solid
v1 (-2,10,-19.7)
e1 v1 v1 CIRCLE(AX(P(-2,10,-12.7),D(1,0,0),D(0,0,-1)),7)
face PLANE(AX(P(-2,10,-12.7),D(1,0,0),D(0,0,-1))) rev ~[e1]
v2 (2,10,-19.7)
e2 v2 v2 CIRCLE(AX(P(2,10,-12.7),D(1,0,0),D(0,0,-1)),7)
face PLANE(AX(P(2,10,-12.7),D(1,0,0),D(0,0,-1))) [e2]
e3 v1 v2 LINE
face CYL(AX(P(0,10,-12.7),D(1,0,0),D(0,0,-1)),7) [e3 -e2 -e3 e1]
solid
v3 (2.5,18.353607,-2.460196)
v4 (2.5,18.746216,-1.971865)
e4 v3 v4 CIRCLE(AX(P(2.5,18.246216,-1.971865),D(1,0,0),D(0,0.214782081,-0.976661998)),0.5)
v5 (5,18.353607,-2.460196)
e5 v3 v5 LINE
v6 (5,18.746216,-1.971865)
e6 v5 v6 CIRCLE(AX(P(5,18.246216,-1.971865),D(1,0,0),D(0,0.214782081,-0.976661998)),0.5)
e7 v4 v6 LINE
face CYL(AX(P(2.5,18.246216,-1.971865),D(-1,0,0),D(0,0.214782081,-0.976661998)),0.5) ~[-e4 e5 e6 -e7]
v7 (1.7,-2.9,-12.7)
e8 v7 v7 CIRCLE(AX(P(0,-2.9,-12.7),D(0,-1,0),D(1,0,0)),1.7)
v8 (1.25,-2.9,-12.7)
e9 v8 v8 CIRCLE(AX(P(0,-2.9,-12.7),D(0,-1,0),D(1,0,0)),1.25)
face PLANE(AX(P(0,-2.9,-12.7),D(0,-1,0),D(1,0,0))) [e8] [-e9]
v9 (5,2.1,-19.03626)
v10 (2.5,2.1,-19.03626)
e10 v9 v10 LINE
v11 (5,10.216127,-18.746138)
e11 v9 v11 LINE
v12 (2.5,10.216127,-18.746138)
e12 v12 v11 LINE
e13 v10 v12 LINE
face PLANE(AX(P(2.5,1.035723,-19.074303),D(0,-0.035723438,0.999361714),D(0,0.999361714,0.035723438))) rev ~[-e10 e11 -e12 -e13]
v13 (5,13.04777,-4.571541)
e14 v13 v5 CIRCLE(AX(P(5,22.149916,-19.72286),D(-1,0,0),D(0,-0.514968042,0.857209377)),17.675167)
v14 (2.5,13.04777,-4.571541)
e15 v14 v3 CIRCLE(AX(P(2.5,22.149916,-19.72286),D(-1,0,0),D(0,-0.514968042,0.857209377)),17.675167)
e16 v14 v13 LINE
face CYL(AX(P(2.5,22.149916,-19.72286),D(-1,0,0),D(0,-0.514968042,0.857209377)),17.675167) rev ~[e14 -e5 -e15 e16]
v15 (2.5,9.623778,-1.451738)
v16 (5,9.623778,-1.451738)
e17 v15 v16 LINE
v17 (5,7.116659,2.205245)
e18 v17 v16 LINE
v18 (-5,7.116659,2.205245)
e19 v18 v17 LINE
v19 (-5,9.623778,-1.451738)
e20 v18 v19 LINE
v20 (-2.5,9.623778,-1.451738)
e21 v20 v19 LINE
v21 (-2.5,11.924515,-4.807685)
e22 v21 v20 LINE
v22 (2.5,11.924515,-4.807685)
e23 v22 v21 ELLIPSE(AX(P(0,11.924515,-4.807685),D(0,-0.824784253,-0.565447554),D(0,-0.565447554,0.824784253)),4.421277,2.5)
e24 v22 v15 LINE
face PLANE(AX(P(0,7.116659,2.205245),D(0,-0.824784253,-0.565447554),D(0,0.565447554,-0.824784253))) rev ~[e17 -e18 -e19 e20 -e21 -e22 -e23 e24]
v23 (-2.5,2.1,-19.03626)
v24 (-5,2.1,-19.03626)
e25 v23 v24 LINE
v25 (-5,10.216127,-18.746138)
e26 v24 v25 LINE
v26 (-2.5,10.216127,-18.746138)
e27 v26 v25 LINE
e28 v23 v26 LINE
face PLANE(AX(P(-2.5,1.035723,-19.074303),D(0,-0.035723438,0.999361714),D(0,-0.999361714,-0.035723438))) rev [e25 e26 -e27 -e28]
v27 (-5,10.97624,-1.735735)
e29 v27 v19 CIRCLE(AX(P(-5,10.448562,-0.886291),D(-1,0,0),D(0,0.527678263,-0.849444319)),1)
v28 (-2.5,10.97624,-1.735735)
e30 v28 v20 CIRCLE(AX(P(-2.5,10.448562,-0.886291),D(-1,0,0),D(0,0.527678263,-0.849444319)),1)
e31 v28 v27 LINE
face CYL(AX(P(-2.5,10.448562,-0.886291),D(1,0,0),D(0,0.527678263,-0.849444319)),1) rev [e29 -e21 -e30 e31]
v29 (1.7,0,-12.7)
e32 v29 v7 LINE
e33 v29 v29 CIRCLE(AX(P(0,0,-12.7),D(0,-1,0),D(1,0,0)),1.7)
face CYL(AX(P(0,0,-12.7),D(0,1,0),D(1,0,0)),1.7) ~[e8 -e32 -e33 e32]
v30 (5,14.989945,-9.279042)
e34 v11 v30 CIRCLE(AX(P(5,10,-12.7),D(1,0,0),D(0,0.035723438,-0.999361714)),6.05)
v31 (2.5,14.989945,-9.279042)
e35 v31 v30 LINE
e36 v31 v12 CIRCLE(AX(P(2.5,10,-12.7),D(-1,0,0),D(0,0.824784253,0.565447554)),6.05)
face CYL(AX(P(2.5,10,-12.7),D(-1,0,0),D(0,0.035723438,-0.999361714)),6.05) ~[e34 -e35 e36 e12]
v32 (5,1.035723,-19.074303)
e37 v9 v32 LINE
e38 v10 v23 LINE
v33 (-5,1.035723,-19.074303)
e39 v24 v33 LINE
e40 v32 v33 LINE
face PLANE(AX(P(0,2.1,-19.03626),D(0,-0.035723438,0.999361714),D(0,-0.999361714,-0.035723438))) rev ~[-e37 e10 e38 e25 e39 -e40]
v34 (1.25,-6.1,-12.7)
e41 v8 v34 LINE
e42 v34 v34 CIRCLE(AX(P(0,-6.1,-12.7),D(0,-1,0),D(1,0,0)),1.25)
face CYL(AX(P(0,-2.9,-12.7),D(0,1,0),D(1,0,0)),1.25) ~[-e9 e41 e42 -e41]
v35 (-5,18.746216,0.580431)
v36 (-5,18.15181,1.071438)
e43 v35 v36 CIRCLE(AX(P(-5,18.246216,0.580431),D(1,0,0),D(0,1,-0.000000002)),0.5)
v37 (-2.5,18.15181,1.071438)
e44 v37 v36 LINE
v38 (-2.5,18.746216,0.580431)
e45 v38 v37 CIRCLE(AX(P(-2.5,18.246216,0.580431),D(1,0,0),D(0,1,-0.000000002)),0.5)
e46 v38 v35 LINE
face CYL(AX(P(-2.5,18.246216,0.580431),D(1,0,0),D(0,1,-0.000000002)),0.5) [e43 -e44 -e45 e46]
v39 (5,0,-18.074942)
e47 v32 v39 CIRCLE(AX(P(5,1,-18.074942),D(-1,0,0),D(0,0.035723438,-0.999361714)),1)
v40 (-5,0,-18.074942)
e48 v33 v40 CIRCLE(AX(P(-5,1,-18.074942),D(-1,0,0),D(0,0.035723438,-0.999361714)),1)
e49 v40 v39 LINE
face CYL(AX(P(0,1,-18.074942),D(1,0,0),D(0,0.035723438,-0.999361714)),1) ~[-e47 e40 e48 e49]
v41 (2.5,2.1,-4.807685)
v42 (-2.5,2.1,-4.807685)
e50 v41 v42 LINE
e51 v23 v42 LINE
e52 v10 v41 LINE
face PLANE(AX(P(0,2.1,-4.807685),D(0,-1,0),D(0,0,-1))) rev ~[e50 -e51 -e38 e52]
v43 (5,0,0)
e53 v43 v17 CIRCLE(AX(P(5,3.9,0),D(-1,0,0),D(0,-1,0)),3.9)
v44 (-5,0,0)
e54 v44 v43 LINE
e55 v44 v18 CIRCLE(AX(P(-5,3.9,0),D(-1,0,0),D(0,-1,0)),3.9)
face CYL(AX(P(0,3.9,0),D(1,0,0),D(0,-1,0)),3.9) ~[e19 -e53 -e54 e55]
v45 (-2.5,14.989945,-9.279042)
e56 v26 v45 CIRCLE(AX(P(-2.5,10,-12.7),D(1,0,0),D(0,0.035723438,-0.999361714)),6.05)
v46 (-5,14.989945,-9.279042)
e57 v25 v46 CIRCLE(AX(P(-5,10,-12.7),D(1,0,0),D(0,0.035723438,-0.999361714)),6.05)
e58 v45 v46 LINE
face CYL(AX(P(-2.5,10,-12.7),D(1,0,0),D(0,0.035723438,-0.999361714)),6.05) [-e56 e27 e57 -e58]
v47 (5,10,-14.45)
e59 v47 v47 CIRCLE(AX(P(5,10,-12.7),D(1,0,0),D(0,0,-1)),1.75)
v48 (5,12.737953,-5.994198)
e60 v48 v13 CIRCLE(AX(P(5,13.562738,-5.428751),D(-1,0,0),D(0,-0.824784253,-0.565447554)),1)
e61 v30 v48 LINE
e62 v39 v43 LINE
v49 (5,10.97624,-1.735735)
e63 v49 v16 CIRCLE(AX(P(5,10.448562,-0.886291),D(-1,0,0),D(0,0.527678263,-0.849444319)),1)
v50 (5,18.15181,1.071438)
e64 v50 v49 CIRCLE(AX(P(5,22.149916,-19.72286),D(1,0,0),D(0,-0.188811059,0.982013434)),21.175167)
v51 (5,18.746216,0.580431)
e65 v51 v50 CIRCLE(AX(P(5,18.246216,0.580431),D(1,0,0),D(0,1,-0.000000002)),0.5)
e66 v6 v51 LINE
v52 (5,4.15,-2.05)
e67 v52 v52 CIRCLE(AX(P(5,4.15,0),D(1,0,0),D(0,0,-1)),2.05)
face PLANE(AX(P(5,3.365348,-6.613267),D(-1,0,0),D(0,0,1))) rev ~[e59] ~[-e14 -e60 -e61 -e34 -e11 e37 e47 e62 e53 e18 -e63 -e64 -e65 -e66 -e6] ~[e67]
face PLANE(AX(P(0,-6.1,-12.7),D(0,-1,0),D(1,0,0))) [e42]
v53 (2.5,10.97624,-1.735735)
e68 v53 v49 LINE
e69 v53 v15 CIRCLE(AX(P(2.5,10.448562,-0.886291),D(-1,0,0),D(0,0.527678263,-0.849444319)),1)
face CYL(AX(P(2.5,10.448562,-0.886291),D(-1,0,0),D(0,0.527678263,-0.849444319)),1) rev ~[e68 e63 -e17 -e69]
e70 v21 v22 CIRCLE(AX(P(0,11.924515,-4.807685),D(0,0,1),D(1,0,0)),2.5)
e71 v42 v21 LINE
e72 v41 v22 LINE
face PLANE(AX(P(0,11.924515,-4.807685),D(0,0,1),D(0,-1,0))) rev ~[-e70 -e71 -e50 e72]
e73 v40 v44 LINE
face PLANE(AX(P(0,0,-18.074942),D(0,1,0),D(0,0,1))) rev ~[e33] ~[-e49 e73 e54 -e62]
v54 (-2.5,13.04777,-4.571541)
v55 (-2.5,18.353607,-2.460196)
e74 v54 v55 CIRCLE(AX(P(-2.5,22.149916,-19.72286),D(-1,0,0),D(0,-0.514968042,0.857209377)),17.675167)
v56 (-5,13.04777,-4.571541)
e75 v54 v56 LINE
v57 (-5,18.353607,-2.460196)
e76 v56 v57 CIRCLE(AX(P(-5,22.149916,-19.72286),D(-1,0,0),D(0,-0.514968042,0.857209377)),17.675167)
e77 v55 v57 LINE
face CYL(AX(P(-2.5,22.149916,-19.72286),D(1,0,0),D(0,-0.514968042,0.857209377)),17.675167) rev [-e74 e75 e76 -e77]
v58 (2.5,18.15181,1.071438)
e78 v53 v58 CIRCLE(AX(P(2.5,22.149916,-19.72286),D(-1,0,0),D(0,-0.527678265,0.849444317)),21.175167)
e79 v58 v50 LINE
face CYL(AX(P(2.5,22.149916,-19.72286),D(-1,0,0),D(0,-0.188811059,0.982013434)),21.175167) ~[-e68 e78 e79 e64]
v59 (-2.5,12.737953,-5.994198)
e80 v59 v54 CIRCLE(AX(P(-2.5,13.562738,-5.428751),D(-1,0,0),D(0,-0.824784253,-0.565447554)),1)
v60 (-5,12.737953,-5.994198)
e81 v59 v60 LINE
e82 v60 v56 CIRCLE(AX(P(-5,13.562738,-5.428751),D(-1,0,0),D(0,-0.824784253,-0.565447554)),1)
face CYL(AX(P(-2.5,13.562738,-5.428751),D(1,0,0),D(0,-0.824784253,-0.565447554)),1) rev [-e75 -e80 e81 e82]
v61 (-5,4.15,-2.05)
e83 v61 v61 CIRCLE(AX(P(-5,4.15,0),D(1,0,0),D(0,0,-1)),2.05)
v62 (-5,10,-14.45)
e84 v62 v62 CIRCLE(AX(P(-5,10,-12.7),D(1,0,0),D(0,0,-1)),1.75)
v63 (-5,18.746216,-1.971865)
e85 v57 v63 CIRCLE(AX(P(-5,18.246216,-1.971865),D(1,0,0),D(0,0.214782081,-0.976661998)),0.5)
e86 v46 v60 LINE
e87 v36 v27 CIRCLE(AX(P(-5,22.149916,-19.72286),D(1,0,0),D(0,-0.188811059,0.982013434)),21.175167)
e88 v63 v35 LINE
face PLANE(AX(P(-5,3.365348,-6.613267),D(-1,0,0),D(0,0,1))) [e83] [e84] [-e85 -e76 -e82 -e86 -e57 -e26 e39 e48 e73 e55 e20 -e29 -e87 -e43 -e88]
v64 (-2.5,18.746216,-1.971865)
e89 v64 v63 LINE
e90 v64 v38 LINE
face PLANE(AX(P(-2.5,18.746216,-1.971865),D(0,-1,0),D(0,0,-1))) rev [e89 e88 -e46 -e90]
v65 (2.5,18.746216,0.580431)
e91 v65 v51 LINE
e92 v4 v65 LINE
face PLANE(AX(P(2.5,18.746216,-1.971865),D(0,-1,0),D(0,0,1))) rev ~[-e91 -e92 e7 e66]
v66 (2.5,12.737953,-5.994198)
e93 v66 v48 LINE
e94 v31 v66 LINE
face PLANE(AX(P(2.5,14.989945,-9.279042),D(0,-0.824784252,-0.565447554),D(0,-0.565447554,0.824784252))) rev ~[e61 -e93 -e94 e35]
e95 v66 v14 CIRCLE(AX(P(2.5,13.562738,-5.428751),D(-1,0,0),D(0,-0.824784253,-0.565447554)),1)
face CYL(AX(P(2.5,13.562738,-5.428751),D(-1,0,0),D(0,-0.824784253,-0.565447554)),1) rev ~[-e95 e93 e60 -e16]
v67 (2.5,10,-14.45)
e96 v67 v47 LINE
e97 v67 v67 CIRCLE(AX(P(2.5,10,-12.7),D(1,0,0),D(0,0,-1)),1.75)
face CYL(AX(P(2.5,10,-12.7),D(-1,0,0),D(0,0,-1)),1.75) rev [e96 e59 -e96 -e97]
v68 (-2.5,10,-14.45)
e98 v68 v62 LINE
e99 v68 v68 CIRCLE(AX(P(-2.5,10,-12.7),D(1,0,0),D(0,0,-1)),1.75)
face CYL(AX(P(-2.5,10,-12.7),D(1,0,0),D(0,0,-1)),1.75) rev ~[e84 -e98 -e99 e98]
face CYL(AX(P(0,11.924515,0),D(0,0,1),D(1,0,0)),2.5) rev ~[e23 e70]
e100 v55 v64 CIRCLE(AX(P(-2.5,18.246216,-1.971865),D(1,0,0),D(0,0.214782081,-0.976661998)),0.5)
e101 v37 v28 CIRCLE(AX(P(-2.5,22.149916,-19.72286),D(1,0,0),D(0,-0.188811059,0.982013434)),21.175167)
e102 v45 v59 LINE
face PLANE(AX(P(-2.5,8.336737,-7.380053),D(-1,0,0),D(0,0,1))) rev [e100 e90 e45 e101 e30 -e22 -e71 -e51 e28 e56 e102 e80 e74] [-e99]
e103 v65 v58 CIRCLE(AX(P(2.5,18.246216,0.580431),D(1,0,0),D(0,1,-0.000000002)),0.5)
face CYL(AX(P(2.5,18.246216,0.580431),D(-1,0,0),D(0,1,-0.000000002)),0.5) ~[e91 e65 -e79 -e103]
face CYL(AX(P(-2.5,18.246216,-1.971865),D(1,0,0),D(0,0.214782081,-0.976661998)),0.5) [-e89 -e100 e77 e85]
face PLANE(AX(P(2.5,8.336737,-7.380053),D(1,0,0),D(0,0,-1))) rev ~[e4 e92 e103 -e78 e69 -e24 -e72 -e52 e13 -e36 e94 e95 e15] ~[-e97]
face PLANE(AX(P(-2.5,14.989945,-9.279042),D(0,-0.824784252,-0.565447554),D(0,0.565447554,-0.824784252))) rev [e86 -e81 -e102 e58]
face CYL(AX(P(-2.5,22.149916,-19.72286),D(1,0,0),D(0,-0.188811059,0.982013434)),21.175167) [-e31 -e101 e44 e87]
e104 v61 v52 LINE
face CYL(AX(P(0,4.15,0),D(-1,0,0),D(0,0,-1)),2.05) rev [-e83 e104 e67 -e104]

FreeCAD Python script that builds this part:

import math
import FreeCAD as App
import Part
import Sketcher
Q = App.Units.Quantity

doc = App.newDocument("Part")
body = doc.addObject("PartDesign::Body", "Body")

# Sketch on YZ plane
sketch1 = body.newObject("Sketcher::SketchObject", "Sketch")
sketch1.AttachmentSupport = (doc.getObject("YZ_Plane"), [""])
sketch1.MapMode = "FlatFace"
sketch1.addGeometry(Part.LineSegment(App.Vector(2.1, -4.8, 0), App.Vector(11.9, -4.8, 0)), False)
sketch1.addGeometry(Part.LineSegment(App.Vector(11.9, -4.8, 0), App.Vector(7.1, 2.2, 0)), False)
sketch1.addGeometry(Part.ArcOfCircle(Part.Circle(App.Vector(3.9, 0, 0), App.Vector(0, 0, 1), 3.9), math.radians(34), math.radians(180)), False)
sketch1.addGeometry(Part.LineSegment(App.Vector(0, 0, 0), App.Vector(0, -18.1, 0)), False)
sketch1.addGeometry(Part.ArcOfCircle(Part.Circle(App.Vector(1, -18.1, 0), App.Vector(0, 0, 1), 1), math.radians(180), math.radians(272)), False)
sketch1.addGeometry(Part.LineSegment(App.Vector(1, -19.1, 0), App.Vector(2.1, -19, 0)), False)
sketch1.addGeometry(Part.LineSegment(App.Vector(2.1, -19, 0), App.Vector(2.1, -4.8, 0)), False)
sketch1.addGeometry(Part.Circle(App.Vector(4.2, 0, 0), App.Vector(0, 0, 1), 2), False)
sketch1.addConstraint(Sketcher.Constraint("Coincident", 0, 2, 1, 1))
sketch1.addConstraint(Sketcher.Constraint("Tangent", 1, 2, 2, 1))
sketch1.addConstraint(Sketcher.Constraint("Tangent", 2, 2, 3, 1))
sketch1.addConstraint(Sketcher.Constraint("Tangent", 3, 2, 4, 1))
sketch1.addConstraint(Sketcher.Constraint("Tangent", 4, 2, 5, 1))
sketch1.addConstraint(Sketcher.Constraint("Coincident", 5, 2, 6, 1))
sketch1.addConstraint(Sketcher.Constraint("Coincident", 6, 2, 0, 1))
sketch1.addConstraint(Sketcher.Constraint("Horizontal", 0))
sketch1.addConstraint(Sketcher.Constraint("Vertical", 3))
sketch1.addConstraint(Sketcher.Constraint("Vertical", 6))
sketch1.addConstraint(Sketcher.Constraint("Coincident", 2, 2, -1, 1))
sketch1.addConstraint(Sketcher.Constraint("PointOnObject", 7, 3, -1))
sketch1.addConstraint(Sketcher.Constraint("Radius", 4, Q("1 mm")))
sketch1.addConstraint(Sketcher.Constraint("Diameter", 7, Q("4.1 mm")))
sketch1.addConstraint(Sketcher.Constraint("Radius", 2, Q("3.9 mm")))
sketch1.addConstraint(Sketcher.Constraint("DistanceX", -1, 1, 5, 2, Q("2.1 mm")))
sketch1.addConstraint(Sketcher.Constraint("DistanceX", -1, 1, 7, 3, Q("4.15 mm")))
sketch1.addConstraint(Sketcher.Constraint("DistanceY", 3, 2, 3, 1, Q("18.074942 mm")))
sketch1.addConstraint(Sketcher.Constraint("DistanceX", 0, 1, 0, 2, Q("9.824515 mm")))
sketch1.addConstraint(Sketcher.Constraint("DistanceY", 6, 1, 6, 2, Q("14.228574 mm")))
sketch1.addConstraint(Sketcher.Constraint("DistanceX", -1, 1, 1, 2, Q("7.116659 mm")))
pad1 = body.newObject("PartDesign::Pad", "Pad")
pad1.Profile = sketch1
pad1.Type = "TwoLengths"
pad1.Length = 5
pad1.Length2 = 5

# Sketch on YZ plane
sketch2 = body.newObject("Sketcher::SketchObject", "Sketch001")
sketch2.AttachmentSupport = (doc.getObject("YZ_Plane"), [""])
sketch2.MapMode = "FlatFace"
sketch2.AttachmentOffset = App.Placement(App.Vector(0, 0, 2.5), App.Rotation())
sketch2.addGeometry(Part.LineSegment(App.Vector(0, 0, 0), App.Vector(0, -18.07, 0)), False)
sketch2.addGeometry(Part.ArcOfCircle(Part.Circle(App.Vector(1, -18.07, 0), App.Vector(0, 0, 1), 1), math.radians(180), math.radians(272)), False)
sketch2.addGeometry(Part.LineSegment(App.Vector(1.04, -19.07, 0), App.Vector(10.22, -18.75, 0)), False)
sketch2.addGeometry(Part.ArcOfCircle(Part.Circle(App.Vector(10, -12.7, 0), App.Vector(0, 0, 1), 6.05), math.radians(-88), math.radians(34)), False)
sketch2.addGeometry(Part.LineSegment(App.Vector(14.99, -9.28, 0), App.Vector(12.74, -5.99, 0)), False)
sketch2.addGeometry(Part.ArcOfCircle(Part.Circle(App.Vector(13.56, -5.43, 0), App.Vector(0, 0, 1), 1), math.radians(121), math.radians(214)), False)
sketch2.addGeometry(Part.ArcOfCircle(Part.Circle(App.Vector(22.15, -19.72, 0), App.Vector(0, 0, 1), 17.68), math.radians(102.4), math.radians(121)), False)
sketch2.addGeometry(Part.ArcOfCircle(Part.Circle(App.Vector(18.25, -1.97, 0), App.Vector(0, 0, 1), 0.5), math.radians(-78), math.radians(0)), False)
sketch2.addGeometry(Part.LineSegment(App.Vector(18.75, -1.97, 0), App.Vector(18.75, 0.58, 0)), False)
sketch2.addGeometry(Part.ArcOfCircle(Part.Circle(App.Vector(18.25, 0.58, 0), App.Vector(0, 0, 1), 0.5), math.radians(0), math.radians(101)), False)
sketch2.addGeometry(Part.ArcOfCircle(Part.Circle(App.Vector(22.15, -19.72, 0), App.Vector(0, 0, 1), 21.18), math.radians(101), math.radians(122)), False)
sketch2.addGeometry(Part.ArcOfCircle(Part.Circle(App.Vector(10.45, -0.89, 0), App.Vector(0, 0, 1), 1), math.radians(-146), math.radians(-58)), False)
sketch2.addGeometry(Part.LineSegment(App.Vector(9.62, -1.45, 0), App.Vector(7.12, 2.21, 0)), False)
sketch2.addGeometry(Part.ArcOfCircle(Part.Circle(App.Vector(3.9, 0, 0), App.Vector(0, 0, 1), 3.9), math.radians(34), math.radians(180)), False)
sketch2.addGeometry(Part.Circle(App.Vector(4.15, 0, 0), App.Vector(0, 0, 1), 2.05), False)
sketch2.addGeometry(Part.Circle(App.Vector(10, -12.7, 0), App.Vector(0, 0, 1), 1.75), False)
sketch2.addConstraint(Sketcher.Constraint("Tangent", 0, 2, 1, 1))
sketch2.addConstraint(Sketcher.Constraint("Tangent", 1, 2, 2, 1))
sketch2.addConstraint(Sketcher.Constraint("Tangent", 2, 2, 3, 1))
sketch2.addConstraint(Sketcher.Constraint("Tangent", 3, 2, 4, 1))
sketch2.addConstraint(Sketcher.Constraint("Tangent", 4, 2, 5, 2))
sketch2.addConstraint(Sketcher.Constraint("Tangent", 5, 1, 6, 2))
sketch2.addConstraint(Sketcher.Constraint("Tangent", 6, 1, 7, 1))
sketch2.addConstraint(Sketcher.Constraint("Tangent", 7, 2, 8, 1))
sketch2.addConstraint(Sketcher.Constraint("Tangent", 8, 2, 9, 1))
sketch2.addConstraint(Sketcher.Constraint("Tangent", 9, 2, 10, 1))
sketch2.addConstraint(Sketcher.Constraint("Tangent", 10, 2, 11, 2))
sketch2.addConstraint(Sketcher.Constraint("Tangent", 11, 1, 12, 1))
sketch2.addConstraint(Sketcher.Constraint("Tangent", 12, 2, 13, 1))
sketch2.addConstraint(Sketcher.Constraint("Tangent", 13, 2, 0, 1))
sketch2.addConstraint(Sketcher.Constraint("Vertical", 0))
sketch2.addConstraint(Sketcher.Constraint("Vertical", 8))
sketch2.addConstraint(Sketcher.Constraint("Coincident", 13, 2, -1, 1))
sketch2.addConstraint(Sketcher.Constraint("Coincident", 10, 3, 6, 3))
sketch2.addConstraint(Sketcher.Constraint("Coincident", 15, 3, 3, 3))
sketch2.addConstraint(Sketcher.Constraint("Equal", 1, 5))
sketch2.addConstraint(Sketcher.Constraint("Equal", 7, 9))
sketch2.addConstraint(Sketcher.Constraint("Equal", 5, 11))
sketch2.addConstraint(Sketcher.Constraint("PointOnObject", 14, 3, -1))
sketch2.addConstraint(Sketcher.Constraint("Parallel", 4, 12))
sketch2.addConstraint(Sketcher.Constraint("Radius", 1, Q("1 mm")))
sketch2.addConstraint(Sketcher.Constraint("Diameter", 14, Q("4.1 mm")))
sketch2.addConstraint(Sketcher.Constraint("Diameter", 15, Q("3.5 mm")))
sketch2.addConstraint(Sketcher.Constraint("Radius", 7, Q("0.5 mm")))
sketch2.addConstraint(Sketcher.Constraint("Radius", 13, Q("3.9 mm")))
sketch2.addConstraint(Sketcher.Constraint("Radius", 3, Q("6.05 mm")))
sketch2.addConstraint(Sketcher.Constraint("DistanceX", -1, 1, 3, 3, Q("10 mm")))
sketch2.addConstraint(Sketcher.Constraint("DistanceY", 3, 3, -1, 1, Q("12.7 mm")))
sketch2.addConstraint(Sketcher.Constraint("DistanceX", -1, 1, 14, 3, Q("4.15 mm")))
sketch2.addConstraint(Sketcher.Constraint("Radius", 6, Q("17.675167 mm")))
sketch2.addConstraint(Sketcher.Constraint("Radius", 10, Q("21.175167 mm")))
sketch2.addConstraint(Sketcher.Constraint("DistanceY", 4, 2, 6, 1, Q("3.534002 mm")))
sketch2.addConstraint(Sketcher.Constraint("DistanceY", 0, 2, 0, 1, Q("18.074942 mm")))
sketch2.addConstraint(Sketcher.Constraint("DistanceY", 4, 2, -1, 1, Q("5.994198 mm")))
sketch2.addConstraint(Sketcher.Constraint("DistanceX", 7, 3, 6, 3, Q("3.9037 mm")))
sketch2.addConstraint(Sketcher.Constraint("DistanceY", 3, 2, 5, 1, Q("4.707501 mm")))
pad2 = body.newObject("PartDesign::Pad", "Pad001")
pad2.Profile = sketch2
pad2.Length = 2.5
doc.recompute()

mirrored = body.newObject("PartDesign::Mirrored", "Mirrored")
mirrored.Originals = [pad2]
mirrored.MirrorPlane = (doc.getObject("YZ_Plane"), [""])
body.Tip = mirrored

# Sketch on XY plane
sketch3 = body.newObject("Sketcher::SketchObject", "Sketch002")
sketch3.AttachmentSupport = (doc.getObject("XY_Plane"), [""])
sketch3.MapMode = "FlatFace"
sketch3.addGeometry(Part.Circle(App.Vector(0, 11.9, 0), App.Vector(0, 0, 1), 2.5), False)
sketch3.addConstraint(Sketcher.Constraint("PointOnObject", 0, 3, -2))
sketch3.addConstraint(Sketcher.Constraint("Diameter", 0, Q("5 mm")))
sketch3.addConstraint(Sketcher.Constraint("DistanceY", -1, 1, 0, 3, Q("11.924515 mm")))
pocket1 = body.newObject("PartDesign::Pocket", "Pocket")
pocket1.Profile = sketch3
pocket1.Length = 21

# Sketch on XZ plane
sketch4 = body.newObject("Sketcher::SketchObject", "Sketch003")
sketch4.AttachmentSupport = (doc.getObject("XZ_Plane"), [""])
sketch4.MapMode = "FlatFace"
sketch4.addGeometry(Part.Circle(App.Vector(0, -12.7, 0), App.Vector(0, 0, 1), 1.7), False)
sketch4.addConstraint(Sketcher.Constraint("PointOnObject", 0, 3, -2))
sketch4.addConstraint(Sketcher.Constraint("Diameter", 0, Q("3.4 mm")))
sketch4.addConstraint(Sketcher.Constraint("DistanceY", 0, 3, -1, 1, Q("12.7 mm")))
pad3 = body.newObject("PartDesign::Pad", "Pad002")
pad3.Profile = sketch4
pad3.Length = 2.9

# Sketch on XZ plane
sketch5 = body.newObject("Sketcher::SketchObject", "Sketch004")
sketch5.AttachmentSupport = (doc.getObject("XZ_Plane"), [""])
sketch5.MapMode = "FlatFace"
sketch5.AttachmentOffset = App.Placement(App.Vector(0, 0, 2.9), App.Rotation())
sketch5.addGeometry(Part.Circle(App.Vector(0, -12.7, 0), App.Vector(0, 0, 1), 1.2), False)
sketch5.addConstraint(Sketcher.Constraint("PointOnObject", 0, 3, -2))
sketch5.addConstraint(Sketcher.Constraint("Diameter", 0, Q("2.5 mm")))
sketch5.addConstraint(Sketcher.Constraint("DistanceY", 0, 3, -1, 1, Q("12.7 mm")))
pad4 = body.newObject("PartDesign::Pad", "Pad003")
pad4.Profile = sketch5
pad4.Length = 3.2
body2 = doc.addObject("PartDesign::Body", "Body001")

# Sketch on YZ plane
sketch6 = body2.newObject("Sketcher::SketchObject", "Sketch005")
sketch6.AttachmentSupport = (doc.getObject("YZ_Plane001"), [""])
sketch6.MapMode = "FlatFace"
sketch6.addGeometry(Part.Circle(App.Vector(10, -13, 0), App.Vector(0, 0, 1), 7), False)
sketch6.addConstraint(Sketcher.Constraint("Diameter", 0, Q("14 mm")))
sketch6.addConstraint(Sketcher.Constraint("DistanceX", -1, 1, 0, 3, Q("10 mm")))
sketch6.addConstraint(Sketcher.Constraint("DistanceY", 0, 3, -1, 1, Q("12.7 mm")))
pad5 = body2.newObject("PartDesign::Pad", "Pad004")
pad5.Profile = sketch6
pad5.Type = "TwoLengths"
pad5.Length = 2
pad5.Length2 = 2

doc.recompute()
